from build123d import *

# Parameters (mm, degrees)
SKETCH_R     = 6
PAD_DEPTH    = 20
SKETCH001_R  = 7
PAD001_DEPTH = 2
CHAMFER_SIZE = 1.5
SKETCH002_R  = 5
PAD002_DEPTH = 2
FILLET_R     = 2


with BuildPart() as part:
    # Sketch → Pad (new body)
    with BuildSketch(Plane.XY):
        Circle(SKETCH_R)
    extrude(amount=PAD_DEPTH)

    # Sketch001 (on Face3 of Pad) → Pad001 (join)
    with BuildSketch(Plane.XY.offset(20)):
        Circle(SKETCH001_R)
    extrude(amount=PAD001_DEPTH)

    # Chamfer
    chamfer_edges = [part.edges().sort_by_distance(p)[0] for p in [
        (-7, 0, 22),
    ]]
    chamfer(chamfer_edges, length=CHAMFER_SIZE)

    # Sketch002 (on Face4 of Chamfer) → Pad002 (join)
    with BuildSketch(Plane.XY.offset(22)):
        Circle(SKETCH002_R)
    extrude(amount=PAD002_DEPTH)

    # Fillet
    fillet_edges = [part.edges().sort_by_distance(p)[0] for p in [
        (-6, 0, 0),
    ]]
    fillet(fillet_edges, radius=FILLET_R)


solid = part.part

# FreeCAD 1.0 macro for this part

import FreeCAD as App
import Part
import Sketcher

V = App.Vector
Q = App.Units.Quantity


def edges_at(feature, points):
    """Names of the edges that pass closest to the given points."""
    edges = feature.Shape.Edges
    near = lambda p: min(range(len(edges)), key=lambda i: edges[i].distToShape(Part.Vertex(*p))[0])
    return sorted({f"Edge{near(p) + 1}" for p in points})

doc = App.newDocument("Part")
params = doc.addObject("Spreadsheet::Sheet", "Params")
for row, (alias, value) in enumerate([
    ("sketch1_diameter", "12 mm"),
    ("pad1_length", "20 mm"),
    ("sketch2_diameter", "14 mm"),
    ("pad2_length", "2 mm"),
    ("chamfer_size", "1.5 mm"),
    ("sketch3_diameter", "10 mm"),
    ("pad3_length", "2 mm"),
    ("fillet_radius", "2 mm"),
], start=1):
    params.set(f"A{row}", alias)
    params.set(f"B{row}", "=" + value)
    params.setAlias(f"B{row}", alias)

body = doc.addObject("PartDesign::Body", "Body")

# Sketch on XY plane
sketch1 = body.newObject("Sketcher::SketchObject", "Sketch")
sketch1.AttachmentSupport = (doc.getObject("XY_Plane"), [""])
sketch1.MapMode = "FlatFace"
sketch1.addGeometry(Part.Circle(V(0, 0, 0), V(0, 0, 1), 6), False)
sketch1.addConstraint(Sketcher.Constraint("Coincident", 0, 3, -1, 1))
sketch1.addConstraint(Sketcher.Constraint("Diameter", 0, Q("12 mm")))
sketch1.setExpression("Constraints[1]", "Params.sketch1_diameter")
pad1 = body.newObject("PartDesign::Pad", "Pad")
pad1.Profile = sketch1
pad1.setExpression("Length", "Params.pad1_length")

# Sketch on XY plane
sketch2 = body.newObject("Sketcher::SketchObject", "Sketch001")
sketch2.AttachmentSupport = (doc.getObject("XY_Plane"), [""])
sketch2.MapMode = "FlatFace"
sketch2.AttachmentOffset = App.Placement(V(0, 0, 20), App.Rotation())
sketch2.addGeometry(Part.Circle(V(0, 0, 0), V(0, 0, 1), 7), False)
sketch2.addConstraint(Sketcher.Constraint("Coincident", 0, 3, -1, 1))
sketch2.addConstraint(Sketcher.Constraint("Diameter", 0, Q("14 mm")))
sketch2.setExpression("Constraints[1]", "Params.sketch2_diameter")
pad2 = body.newObject("PartDesign::Pad", "Pad001")
pad2.Profile = sketch2
pad2.setExpression("Length", "Params.pad2_length")
doc.recompute()

chamfer = body.newObject("PartDesign::Chamfer", "Chamfer")
chamfer.Base = (pad2, edges_at(pad2, [(-7, 0, 22)]))
chamfer.setExpression("Size", "Params.chamfer_size")

# Sketch on XY plane
sketch3 = body.newObject("Sketcher::SketchObject", "Sketch002")
sketch3.AttachmentSupport = (doc.getObject("XY_Plane"), [""])
sketch3.MapMode = "FlatFace"
sketch3.AttachmentOffset = App.Placement(V(0, 0, 22), App.Rotation())
sketch3.addGeometry(Part.Circle(V(0, 0, 0), V(0, 0, 1), 5), False)
sketch3.addConstraint(Sketcher.Constraint("Coincident", 0, 3, -1, 1))
sketch3.addConstraint(Sketcher.Constraint("Diameter", 0, Q("10 mm")))
sketch3.setExpression("Constraints[1]", "Params.sketch3_diameter")
pad3 = body.newObject("PartDesign::Pad", "Pad002")
pad3.Profile = sketch3
pad3.setExpression("Length", "Params.pad3_length")
doc.recompute()

fillet = body.newObject("PartDesign::Fillet", "Fillet")
fillet.Base = (pad3, edges_at(pad3, [(-6, 0, 0)]))
fillet.setExpression("Radius", "Params.fillet_radius")

doc.recompute()
